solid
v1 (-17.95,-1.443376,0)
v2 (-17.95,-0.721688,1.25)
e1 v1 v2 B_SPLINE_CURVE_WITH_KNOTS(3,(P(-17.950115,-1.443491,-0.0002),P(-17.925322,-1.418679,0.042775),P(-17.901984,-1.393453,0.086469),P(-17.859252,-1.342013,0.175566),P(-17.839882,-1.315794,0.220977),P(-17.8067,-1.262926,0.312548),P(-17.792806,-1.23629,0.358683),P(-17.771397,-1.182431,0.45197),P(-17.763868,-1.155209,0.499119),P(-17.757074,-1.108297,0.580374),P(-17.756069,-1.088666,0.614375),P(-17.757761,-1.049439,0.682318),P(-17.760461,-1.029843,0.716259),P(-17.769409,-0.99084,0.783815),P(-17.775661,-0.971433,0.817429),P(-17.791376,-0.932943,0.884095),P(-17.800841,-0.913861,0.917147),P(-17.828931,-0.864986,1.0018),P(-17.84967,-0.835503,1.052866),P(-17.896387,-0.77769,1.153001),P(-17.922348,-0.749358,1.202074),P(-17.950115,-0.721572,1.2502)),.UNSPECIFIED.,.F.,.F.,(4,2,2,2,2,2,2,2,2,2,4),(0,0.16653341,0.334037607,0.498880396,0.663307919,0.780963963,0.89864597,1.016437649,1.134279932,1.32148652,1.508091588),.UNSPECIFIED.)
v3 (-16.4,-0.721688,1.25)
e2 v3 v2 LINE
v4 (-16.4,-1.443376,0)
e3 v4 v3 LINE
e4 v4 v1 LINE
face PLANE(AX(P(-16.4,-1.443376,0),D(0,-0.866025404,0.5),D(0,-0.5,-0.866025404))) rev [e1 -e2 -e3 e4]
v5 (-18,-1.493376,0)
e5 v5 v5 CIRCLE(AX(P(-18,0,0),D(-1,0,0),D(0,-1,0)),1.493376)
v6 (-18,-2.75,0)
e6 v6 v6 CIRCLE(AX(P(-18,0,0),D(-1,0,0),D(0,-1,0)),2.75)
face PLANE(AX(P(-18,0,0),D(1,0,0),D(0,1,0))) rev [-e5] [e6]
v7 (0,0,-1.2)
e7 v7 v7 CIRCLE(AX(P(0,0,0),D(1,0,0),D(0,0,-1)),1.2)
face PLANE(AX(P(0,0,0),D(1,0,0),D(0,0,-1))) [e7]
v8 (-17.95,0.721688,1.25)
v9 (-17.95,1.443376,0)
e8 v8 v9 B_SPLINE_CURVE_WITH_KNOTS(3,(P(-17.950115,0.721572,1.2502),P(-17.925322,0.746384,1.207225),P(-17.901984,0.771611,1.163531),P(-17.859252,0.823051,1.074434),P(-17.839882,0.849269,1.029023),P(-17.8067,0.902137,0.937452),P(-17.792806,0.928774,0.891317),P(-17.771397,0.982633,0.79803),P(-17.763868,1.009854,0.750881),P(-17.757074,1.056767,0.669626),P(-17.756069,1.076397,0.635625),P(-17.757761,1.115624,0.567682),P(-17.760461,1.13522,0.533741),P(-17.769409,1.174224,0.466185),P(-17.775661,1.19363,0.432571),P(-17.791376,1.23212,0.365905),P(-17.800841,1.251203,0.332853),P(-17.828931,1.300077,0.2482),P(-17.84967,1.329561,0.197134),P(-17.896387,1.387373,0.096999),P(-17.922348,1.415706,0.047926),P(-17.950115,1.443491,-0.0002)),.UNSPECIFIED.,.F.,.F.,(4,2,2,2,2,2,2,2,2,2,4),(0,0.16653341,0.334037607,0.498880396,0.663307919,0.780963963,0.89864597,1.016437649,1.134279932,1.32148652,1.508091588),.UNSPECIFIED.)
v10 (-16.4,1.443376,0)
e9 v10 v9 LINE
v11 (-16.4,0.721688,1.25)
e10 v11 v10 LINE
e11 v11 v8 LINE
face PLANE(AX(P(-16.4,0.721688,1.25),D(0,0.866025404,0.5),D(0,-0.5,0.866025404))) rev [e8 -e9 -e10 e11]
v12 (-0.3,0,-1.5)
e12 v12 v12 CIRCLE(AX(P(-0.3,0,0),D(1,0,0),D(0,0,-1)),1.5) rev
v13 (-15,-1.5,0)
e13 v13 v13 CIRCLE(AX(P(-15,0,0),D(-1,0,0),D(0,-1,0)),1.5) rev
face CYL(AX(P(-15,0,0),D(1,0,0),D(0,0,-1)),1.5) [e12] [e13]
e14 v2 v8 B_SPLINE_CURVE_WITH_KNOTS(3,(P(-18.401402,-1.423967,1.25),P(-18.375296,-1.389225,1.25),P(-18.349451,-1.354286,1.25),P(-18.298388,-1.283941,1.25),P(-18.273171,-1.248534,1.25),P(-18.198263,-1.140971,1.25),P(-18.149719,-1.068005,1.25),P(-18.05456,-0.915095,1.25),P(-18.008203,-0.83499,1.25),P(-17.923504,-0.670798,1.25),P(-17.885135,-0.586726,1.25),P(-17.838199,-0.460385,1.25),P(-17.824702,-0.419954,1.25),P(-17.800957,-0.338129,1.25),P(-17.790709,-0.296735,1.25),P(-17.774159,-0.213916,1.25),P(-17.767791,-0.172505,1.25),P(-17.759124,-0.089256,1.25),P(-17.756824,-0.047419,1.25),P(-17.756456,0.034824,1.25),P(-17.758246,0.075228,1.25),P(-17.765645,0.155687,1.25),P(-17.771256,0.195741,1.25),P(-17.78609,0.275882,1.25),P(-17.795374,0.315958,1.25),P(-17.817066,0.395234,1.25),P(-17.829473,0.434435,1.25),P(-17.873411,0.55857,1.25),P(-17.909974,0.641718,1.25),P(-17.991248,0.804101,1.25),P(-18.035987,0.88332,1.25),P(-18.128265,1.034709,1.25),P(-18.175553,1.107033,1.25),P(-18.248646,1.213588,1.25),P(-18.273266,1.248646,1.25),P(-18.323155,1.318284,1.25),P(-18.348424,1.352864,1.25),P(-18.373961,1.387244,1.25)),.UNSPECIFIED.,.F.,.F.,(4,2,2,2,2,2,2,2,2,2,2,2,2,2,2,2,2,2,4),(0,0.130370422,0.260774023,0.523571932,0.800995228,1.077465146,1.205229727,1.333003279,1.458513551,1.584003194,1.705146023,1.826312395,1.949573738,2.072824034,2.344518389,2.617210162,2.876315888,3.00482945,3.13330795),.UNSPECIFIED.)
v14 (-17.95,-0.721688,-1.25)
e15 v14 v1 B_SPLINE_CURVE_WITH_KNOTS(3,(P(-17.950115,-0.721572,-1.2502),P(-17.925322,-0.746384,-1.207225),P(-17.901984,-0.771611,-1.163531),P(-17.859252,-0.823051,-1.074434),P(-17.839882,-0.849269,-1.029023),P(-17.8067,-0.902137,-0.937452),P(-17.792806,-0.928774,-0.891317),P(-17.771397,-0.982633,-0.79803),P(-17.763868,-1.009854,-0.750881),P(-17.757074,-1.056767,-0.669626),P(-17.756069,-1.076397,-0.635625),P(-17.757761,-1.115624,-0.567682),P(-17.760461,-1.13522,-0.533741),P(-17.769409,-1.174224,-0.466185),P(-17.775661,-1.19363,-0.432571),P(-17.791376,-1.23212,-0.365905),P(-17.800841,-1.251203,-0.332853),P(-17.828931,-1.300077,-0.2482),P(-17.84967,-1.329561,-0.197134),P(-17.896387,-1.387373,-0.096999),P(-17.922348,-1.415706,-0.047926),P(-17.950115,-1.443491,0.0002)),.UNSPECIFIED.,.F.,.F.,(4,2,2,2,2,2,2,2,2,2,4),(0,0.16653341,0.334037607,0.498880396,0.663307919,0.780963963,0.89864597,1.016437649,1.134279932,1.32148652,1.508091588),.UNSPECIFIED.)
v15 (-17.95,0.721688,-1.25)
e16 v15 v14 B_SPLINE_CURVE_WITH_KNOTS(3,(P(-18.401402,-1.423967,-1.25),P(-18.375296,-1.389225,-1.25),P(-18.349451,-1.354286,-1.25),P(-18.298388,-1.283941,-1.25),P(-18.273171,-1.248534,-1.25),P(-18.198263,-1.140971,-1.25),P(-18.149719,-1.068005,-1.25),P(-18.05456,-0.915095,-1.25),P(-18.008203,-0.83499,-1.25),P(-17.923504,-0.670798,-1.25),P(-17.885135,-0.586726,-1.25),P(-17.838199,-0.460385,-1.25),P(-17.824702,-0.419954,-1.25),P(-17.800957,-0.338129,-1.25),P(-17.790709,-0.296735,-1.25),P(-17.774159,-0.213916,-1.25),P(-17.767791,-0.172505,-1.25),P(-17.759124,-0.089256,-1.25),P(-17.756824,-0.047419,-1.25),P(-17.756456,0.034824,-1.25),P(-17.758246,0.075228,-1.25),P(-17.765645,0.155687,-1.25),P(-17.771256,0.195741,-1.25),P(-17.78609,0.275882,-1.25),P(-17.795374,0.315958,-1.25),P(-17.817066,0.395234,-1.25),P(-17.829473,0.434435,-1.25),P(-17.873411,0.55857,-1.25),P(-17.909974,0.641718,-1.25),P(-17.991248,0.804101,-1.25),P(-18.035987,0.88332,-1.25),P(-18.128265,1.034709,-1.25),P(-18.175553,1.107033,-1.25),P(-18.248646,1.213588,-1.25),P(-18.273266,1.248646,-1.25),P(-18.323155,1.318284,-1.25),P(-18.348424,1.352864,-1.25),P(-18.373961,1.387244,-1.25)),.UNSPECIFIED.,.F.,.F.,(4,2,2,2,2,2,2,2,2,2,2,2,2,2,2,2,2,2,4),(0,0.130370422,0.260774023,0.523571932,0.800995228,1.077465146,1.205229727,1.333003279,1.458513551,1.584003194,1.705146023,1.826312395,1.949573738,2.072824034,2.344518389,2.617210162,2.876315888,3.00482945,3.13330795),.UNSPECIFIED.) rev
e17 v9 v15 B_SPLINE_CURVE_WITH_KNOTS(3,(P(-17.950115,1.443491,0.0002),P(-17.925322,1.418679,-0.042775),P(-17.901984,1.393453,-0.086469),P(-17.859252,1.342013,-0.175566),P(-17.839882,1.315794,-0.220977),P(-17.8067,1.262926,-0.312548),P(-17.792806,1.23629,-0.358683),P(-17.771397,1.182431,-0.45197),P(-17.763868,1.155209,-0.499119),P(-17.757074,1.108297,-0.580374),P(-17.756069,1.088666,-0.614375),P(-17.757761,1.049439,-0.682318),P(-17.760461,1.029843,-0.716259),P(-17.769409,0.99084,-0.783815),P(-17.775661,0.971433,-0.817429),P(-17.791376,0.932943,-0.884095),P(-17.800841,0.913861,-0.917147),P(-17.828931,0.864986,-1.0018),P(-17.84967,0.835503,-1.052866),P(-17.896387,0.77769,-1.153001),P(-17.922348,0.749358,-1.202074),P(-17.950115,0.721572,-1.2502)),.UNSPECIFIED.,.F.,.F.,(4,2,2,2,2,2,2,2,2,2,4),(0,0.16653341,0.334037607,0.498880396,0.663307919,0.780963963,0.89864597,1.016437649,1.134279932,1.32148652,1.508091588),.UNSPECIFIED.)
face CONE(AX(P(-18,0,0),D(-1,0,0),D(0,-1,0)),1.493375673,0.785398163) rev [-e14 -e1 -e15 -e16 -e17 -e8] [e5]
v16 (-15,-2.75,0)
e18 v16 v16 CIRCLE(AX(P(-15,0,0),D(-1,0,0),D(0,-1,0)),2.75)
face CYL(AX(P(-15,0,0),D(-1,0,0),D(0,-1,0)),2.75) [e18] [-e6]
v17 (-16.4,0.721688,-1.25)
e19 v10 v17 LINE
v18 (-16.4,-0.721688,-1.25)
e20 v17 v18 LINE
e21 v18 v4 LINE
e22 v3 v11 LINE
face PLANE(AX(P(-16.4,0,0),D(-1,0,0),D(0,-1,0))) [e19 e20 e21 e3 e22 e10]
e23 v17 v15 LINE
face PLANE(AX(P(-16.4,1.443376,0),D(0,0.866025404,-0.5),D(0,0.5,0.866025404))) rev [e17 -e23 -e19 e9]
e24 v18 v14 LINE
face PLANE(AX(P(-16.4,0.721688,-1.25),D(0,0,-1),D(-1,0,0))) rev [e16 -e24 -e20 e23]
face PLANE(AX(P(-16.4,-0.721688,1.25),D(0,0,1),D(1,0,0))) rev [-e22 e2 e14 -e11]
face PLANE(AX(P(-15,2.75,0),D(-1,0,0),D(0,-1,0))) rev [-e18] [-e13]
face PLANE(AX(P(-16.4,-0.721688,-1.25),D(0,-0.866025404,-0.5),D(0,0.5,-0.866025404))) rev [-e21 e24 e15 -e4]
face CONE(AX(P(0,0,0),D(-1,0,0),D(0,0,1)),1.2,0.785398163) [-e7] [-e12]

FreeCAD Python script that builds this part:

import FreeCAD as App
import Part
import Sketcher
from FreeCAD import Vector
Q = App.Units.Quantity


def edges_at(feature, points):
    """Names of the edges that pass closest to the given points."""
    edges = feature.Shape.Edges
    near = lambda p: min(range(len(edges)), key=lambda i: edges[i].distToShape(Part.Vertex(*p))[0])
    return sorted({f"Edge{near(p) + 1}" for p in points})


def add_polygon(sketch, points):
    """Adds a closed chain of lines whose ends are joined by coincident constraints."""
    first, n = sketch.GeometryCount, len(points)
    for a, b in zip(points, points[1:] + points[:1]):
        sketch.addGeometry(Part.LineSegment(App.Vector(*a, 0), App.Vector(*b, 0)), False)
    for i in range(n):
        sketch.addConstraint(Sketcher.Constraint("Coincident", first + i, 2, first + (i + 1) % n, 1))

doc = App.newDocument("Part")
body = doc.addObject("PartDesign::Body", "Body")

# Sketch on YZ plane
sketch1 = doc.addObject("Sketcher::SketchObject", "Sketch")
body.addObject(sketch1)
sketch1.AttachmentSupport = (doc.YZ_Plane, [""])
sketch1.MapMode = "FlatFace"
sketch1.addGeometry(Part.Circle(Vector(0, 0, 0), Vector(0, 0, 1), 1.5), False)
sketch1.addConstraint([
    Sketcher.Constraint("Coincident", 0, 3, -1, 1),
    Sketcher.Constraint("Diameter", 0, 3.0),
])
pad1 = doc.addObject("PartDesign::Pad", "Pad")
body.addObject(pad1)
pad1.Profile = sketch1
pad1.Length = 15
pad1.Reversed = True
doc.recompute()

chamfer = doc.addObject("PartDesign::Chamfer", "Chamfer")
body.addObject(chamfer)
chamfer.Base = (pad1, edges_at(pad1, [(0, 0, 1.5)]))
chamfer.Size = 0.3

# Sketch on XY plane
sketch2 = doc.addObject("Sketcher::SketchObject", "Sketch001")
body.addObject(sketch2)
sketch2.AttachmentSupport = (doc.XY_Plane, [""])
sketch2.MapMode = "FlatFace"
add_polygon(sketch2, [(-18, 2.75), (-18, 0), (-15, 0), (-15, 2.75)])  # lines 0-3
sketch2.addConstraint([
    Sketcher.Constraint("Vertical", 0),
    Sketcher.Constraint("Horizontal", 1),
    Sketcher.Constraint("Vertical", 2),
    Sketcher.Constraint("Horizontal", 3),
    Sketcher.Constraint("PointOnObject", 0, 2, -1),
    Sketcher.Constraint("DistanceX", 1, 1, 1, 2, 3.0),
    Sketcher.Constraint("DistanceX", 0, 2, -1, 1, 18.0),
    Sketcher.Constraint("DistanceY", 0, 2, 0, 1, 2.75),
])
revolution = doc.addObject("PartDesign::Revolution", "Revolution")
body.addObject(revolution)
revolution.Profile = sketch2
revolution.ReferenceAxis = (sketch2, ["H_Axis"])
revolution.Angle = 360

# Sketch on YZ plane
sketch3 = doc.addObject("Sketcher::SketchObject", "Sketch002")
body.addObject(sketch3)
sketch3.AttachmentSupport = (doc.YZ_Plane, [""])
sketch3.MapMode = "FlatFace"
sketch3.AttachmentOffset = App.Placement(Vector(0, 0, -18), App.Rotation())
add_polygon(sketch3, [(1.443376, 0), (0.721688, -1.25), (-0.721688, -1.25), (-1.443376, 0), (-0.721688, 1.25), (0.721688, 1.25)])  # lines 0-5
sketch3.addConstraint([
    Sketcher.Constraint("Horizontal", 1),
    Sketcher.Constraint("Horizontal", 4),
    Sketcher.Constraint("Symmetric", 0, 2, 3, 2, -1, 1),
    Sketcher.Constraint("Symmetric", 2, 2, 5, 2, -1, 1),
    Sketcher.Constraint("PointOnObject", 2, 2, -1),
    Sketcher.Constraint("Parallel", 2, 5),
    Sketcher.Constraint("Vertical", 1, 2, 3, 2),
    Sketcher.Constraint("Angle", 0, Q("-120 deg")),
    Sketcher.Constraint("DistanceY", 1, 2, 3, 2, 2.5),
    Sketcher.Constraint("DistanceX", 1, 2, 1, 1, 1.443376),
])
pocket1 = doc.addObject("PartDesign::Pocket", "Pocket")
body.addObject(pocket1)
pocket1.Profile = sketch3
pocket1.Length = 1.6
pocket1.Reversed = True

# Sketch on YZ plane
sketch4 = doc.addObject("Sketcher::SketchObject", "Sketch003")
body.addObject(sketch4)
sketch4.AttachmentSupport = (doc.YZ_Plane, [""])
sketch4.MapMode = "FlatFace"
sketch4.AttachmentOffset = App.Placement(Vector(0, 0, -18), App.Rotation())
sketch4.addGeometry(Part.Circle(Vector(0, 0, 0), Vector(0, 0, 1), 1.493376), False)
sketch4.addConstraint([
    Sketcher.Constraint("Coincident", 0, 3, -1, 1),
    Sketcher.Constraint("Diameter", 0, 2.986751),
])
pocket2 = doc.addObject("PartDesign::Pocket", "Pocket001")
body.addObject(pocket2)
pocket2.Profile = sketch4
pocket2.Length = 1
pocket2.Reversed = True
pocket2.TaperAngle = -45

doc.recompute()
